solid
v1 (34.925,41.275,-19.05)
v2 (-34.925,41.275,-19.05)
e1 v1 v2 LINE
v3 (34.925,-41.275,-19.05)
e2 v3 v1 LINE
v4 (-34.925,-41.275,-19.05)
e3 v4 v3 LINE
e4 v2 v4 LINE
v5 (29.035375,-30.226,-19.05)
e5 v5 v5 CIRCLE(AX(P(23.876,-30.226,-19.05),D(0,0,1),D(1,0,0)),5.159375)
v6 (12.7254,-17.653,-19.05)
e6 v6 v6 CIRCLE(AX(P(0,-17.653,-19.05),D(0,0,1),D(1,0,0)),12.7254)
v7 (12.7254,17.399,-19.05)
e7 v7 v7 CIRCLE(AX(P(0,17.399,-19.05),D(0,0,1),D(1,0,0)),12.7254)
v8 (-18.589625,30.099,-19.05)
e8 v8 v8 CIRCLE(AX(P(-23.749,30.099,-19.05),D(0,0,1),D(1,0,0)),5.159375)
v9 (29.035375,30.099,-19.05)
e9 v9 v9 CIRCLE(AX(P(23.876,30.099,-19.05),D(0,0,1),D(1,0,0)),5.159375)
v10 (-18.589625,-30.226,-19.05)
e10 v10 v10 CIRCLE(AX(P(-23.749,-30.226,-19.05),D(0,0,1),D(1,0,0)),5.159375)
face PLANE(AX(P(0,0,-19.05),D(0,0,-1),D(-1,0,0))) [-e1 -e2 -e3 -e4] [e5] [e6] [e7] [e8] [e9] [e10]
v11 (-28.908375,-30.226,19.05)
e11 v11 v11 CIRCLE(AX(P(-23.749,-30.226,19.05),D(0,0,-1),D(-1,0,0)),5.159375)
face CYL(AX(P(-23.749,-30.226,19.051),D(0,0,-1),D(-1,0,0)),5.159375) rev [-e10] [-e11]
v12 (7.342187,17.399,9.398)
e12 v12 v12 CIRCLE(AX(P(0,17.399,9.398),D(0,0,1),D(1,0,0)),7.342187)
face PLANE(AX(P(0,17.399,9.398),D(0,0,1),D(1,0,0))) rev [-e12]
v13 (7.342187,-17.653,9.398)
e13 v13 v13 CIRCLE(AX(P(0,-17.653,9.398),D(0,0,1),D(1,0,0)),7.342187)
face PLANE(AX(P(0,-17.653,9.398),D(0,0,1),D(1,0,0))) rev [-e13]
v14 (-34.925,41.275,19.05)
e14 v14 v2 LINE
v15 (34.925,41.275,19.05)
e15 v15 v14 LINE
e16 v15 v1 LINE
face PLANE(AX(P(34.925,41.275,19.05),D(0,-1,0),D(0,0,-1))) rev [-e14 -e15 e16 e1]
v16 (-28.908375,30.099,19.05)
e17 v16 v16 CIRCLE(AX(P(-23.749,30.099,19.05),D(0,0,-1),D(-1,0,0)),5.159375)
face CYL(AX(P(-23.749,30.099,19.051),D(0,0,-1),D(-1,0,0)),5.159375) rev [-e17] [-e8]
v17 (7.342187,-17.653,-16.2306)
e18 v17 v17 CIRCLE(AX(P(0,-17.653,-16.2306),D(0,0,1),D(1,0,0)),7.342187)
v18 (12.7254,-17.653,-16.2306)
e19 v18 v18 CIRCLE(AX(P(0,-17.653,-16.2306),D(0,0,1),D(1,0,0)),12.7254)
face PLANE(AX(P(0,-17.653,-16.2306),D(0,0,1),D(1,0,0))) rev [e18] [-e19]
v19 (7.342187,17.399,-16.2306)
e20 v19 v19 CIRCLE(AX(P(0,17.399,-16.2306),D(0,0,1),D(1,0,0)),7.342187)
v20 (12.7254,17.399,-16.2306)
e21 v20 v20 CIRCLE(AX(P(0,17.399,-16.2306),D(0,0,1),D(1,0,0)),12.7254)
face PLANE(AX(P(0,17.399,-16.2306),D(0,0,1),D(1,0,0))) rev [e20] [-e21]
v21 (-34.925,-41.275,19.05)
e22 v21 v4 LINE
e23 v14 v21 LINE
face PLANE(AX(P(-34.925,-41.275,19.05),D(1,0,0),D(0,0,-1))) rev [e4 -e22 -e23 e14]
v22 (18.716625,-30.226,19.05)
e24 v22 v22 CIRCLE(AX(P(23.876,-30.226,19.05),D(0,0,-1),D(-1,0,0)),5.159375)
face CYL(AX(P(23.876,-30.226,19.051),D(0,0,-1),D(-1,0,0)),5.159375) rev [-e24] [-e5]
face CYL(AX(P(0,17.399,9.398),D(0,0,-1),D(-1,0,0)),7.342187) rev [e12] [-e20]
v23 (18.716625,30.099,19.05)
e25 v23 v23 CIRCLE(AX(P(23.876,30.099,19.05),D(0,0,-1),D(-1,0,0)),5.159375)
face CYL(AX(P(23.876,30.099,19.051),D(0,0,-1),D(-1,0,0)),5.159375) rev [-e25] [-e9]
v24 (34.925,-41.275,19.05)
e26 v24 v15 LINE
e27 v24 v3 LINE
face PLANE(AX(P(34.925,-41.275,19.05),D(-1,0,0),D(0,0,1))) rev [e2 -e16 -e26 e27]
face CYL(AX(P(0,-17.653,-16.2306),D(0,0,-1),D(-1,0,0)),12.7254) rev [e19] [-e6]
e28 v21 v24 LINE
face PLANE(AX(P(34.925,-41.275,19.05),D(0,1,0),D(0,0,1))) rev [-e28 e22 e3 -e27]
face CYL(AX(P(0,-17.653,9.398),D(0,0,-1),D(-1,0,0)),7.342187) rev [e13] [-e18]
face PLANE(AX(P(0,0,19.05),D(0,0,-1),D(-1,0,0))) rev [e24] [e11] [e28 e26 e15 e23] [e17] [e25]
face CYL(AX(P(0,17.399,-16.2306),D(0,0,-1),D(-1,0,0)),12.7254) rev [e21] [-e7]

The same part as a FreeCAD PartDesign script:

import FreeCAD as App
import Part
import Sketcher
Q = App.Units.Quantity


def add_polygon(sketch, points):
    """Adds a closed chain of lines whose ends are joined by coincident constraints."""
    first, n = sketch.GeometryCount, len(points)
    for a, b in zip(points, points[1:] + points[:1]):
        sketch.addGeometry(Part.LineSegment(App.Vector(*a, 0), App.Vector(*b, 0)), False)
    for i in range(n):
        sketch.addConstraint(Sketcher.Constraint("Coincident", first + i, 2, first + (i + 1) % n, 1))

doc = App.newDocument("Part")
body = doc.addObject("PartDesign::Body", "Body")

# Sketch on XY plane
sketch1 = body.newObject("Sketcher::SketchObject", "Sketch")
sketch1.AttachmentSupport = (doc.getObject("XY_Plane"), [""])
sketch1.MapMode = "FlatFace"
add_polygon(sketch1, [(-35, -41), (35, -41), (35, 41), (-35, 41)])  # lines 0-3
sketch1.addConstraint([
    Sketcher.Constraint("Horizontal", 0),
    Sketcher.Constraint("Vertical", 1),
    Sketcher.Constraint("Horizontal", 2),
    Sketcher.Constraint("Vertical", 3),
    Sketcher.Constraint("Symmetric", 0, 2, 2, 2, -1, 1),
    Sketcher.Constraint("DistanceX", 0, 1, 0, 2, Q("2.75 in")),
    Sketcher.Constraint("DistanceY", 1, 1, 1, 2, Q("3.25 in")),
])
pad1 = body.newObject("PartDesign::Pad", "Pad")
pad1.Profile = sketch1
pad1.Length = Q("1.5 in")
pad1.Midplane = True

# Sketch on XY plane
sketch2 = body.newObject("Sketcher::SketchObject", "Sketch001")
sketch2.AttachmentSupport = (doc.getObject("XY_Plane"), [""])
sketch2.MapMode = "FlatFace"
sketch2.AttachmentOffset = App.Placement(App.Vector(0, 0, -0.75 * 25.4), App.Rotation())
sketch2.addGeometry(Part.Circle(App.Vector(24, -30, 0), App.Vector(0, 0, 1), 5), False)
sketch2.addConstraint([
    Sketcher.Constraint("Diameter", 0, Q("0.40625 in")),
    Sketcher.Constraint("DistanceX", -1, 1, 0, 3, Q("0.94 in")),
    Sketcher.Constraint("DistanceY", 0, 3, -1, 1, Q("1.19 in")),
])
pocket1 = body.newObject("PartDesign::Pocket", "Pocket")
pocket1.Profile = sketch2
pocket1.Length = Q("1.5 in")
pocket1.Reversed = True

# Sketch on XY plane
sketch3 = body.newObject("Sketcher::SketchObject", "Sketch002")
sketch3.AttachmentSupport = (doc.getObject("XY_Plane"), [""])
sketch3.MapMode = "FlatFace"
sketch3.AttachmentOffset = App.Placement(App.Vector(0, 0, -0.75 * 25.4), App.Rotation())
sketch3.addGeometry([
    Part.Circle(App.Vector(24, 30, 0), App.Vector(0, 0, 1), 5),
    Part.Circle(App.Vector(-24, -30, 0), App.Vector(0, 0, 1), 5),
    Part.Circle(App.Vector(-24, 30, 0), App.Vector(0, 0, 1), 5),
], False)
sketch3.addConstraint([
    Sketcher.Constraint("Equal", 0, 1),
    Sketcher.Constraint("Equal", 1, 2),
    Sketcher.Constraint("Horizontal", 0, 3, 2, 3),
    Sketcher.Constraint("Vertical", 1, 3, 2, 3),
    Sketcher.Constraint("Diameter", 0, Q("0.40625 in")),
    Sketcher.Constraint("DistanceX", -1, 1, 0, 3, Q("0.94 in")),
    Sketcher.Constraint("DistanceY", 1, 3, -1, 1, Q("1.19 in")),
    Sketcher.Constraint("DistanceY", -1, 1, 0, 3, Q("1.185 in")),
    Sketcher.Constraint("DistanceX", 1, 3, -1, 1, Q("0.935 in")),
])
pocket2 = body.newObject("PartDesign::Pocket", "Pocket001")
pocket2.Profile = sketch3
pocket2.Length = Q("1.5 in")
pocket2.Reversed = True

# Sketch on XY plane
sketch4 = body.newObject("Sketcher::SketchObject", "Sketch003")
sketch4.AttachmentSupport = (doc.getObject("XY_Plane"), [""])
sketch4.MapMode = "FlatFace"
sketch4.AttachmentOffset = App.Placement(App.Vector(0, 0, -0.75 * 25.4), App.Rotation())
sketch4.addGeometry(Part.Circle(App.Vector(0, -18, 0), App.Vector(0, 0, 1), 7), False)
sketch4.addConstraint([
    Sketcher.Constraint("PointOnObject", 0, 3, -2),
    Sketcher.Constraint("Diameter", 0, Q("0.578125 in")),
    Sketcher.Constraint("DistanceY", 0, 3, -1, 1, Q("0.695 in")),
])
pocket3 = body.newObject("PartDesign::Pocket", "Pocket002")
pocket3.Profile = sketch4
pocket3.Length = Q("1.12 in")
pocket3.Reversed = True

# Sketch on XY plane
sketch5 = body.newObject("Sketcher::SketchObject", "Sketch004")
sketch5.AttachmentSupport = (doc.getObject("XY_Plane"), [""])
sketch5.MapMode = "FlatFace"
sketch5.AttachmentOffset = App.Placement(App.Vector(0, 0, -0.75 * 25.4), App.Rotation())
sketch5.addGeometry(Part.Circle(App.Vector(0, -18, 0), App.Vector(0, 0, 1), 13), False)
sketch5.addConstraint([
    Sketcher.Constraint("PointOnObject", 0, 3, -2),
    Sketcher.Constraint("Diameter", 0, Q("1.002 in")),
    Sketcher.Constraint("DistanceY", 0, 3, -1, 1, Q("0.695 in")),
])
pocket4 = body.newObject("PartDesign::Pocket", "Pocket003")
pocket4.Profile = sketch5
pocket4.Length = Q("0.111 in")
pocket4.Reversed = True

# Sketch on XY plane
sketch6 = body.newObject("Sketcher::SketchObject", "Sketch005")
sketch6.AttachmentSupport = (doc.getObject("XY_Plane"), [""])
sketch6.MapMode = "FlatFace"
sketch6.AttachmentOffset = App.Placement(App.Vector(0, 0, -0.75 * 25.4), App.Rotation())
sketch6.addGeometry(Part.Circle(App.Vector(0, 17, 0), App.Vector(0, 0, 1), 7), False)
sketch6.addConstraint([
    Sketcher.Constraint("PointOnObject", 0, 3, -2),
    Sketcher.Constraint("Diameter", 0, Q("0.578125 in")),
    Sketcher.Constraint("DistanceY", -1, 1, 0, 3, Q("0.685 in")),
])
pocket5 = body.newObject("PartDesign::Pocket", "Pocket004")
pocket5.Profile = sketch6
pocket5.Length = Q("1.12 in")
pocket5.Reversed = True

# Sketch on XY plane
sketch7 = body.newObject("Sketcher::SketchObject", "Sketch006")
sketch7.AttachmentSupport = (doc.getObject("XY_Plane"), [""])
sketch7.MapMode = "FlatFace"
sketch7.AttachmentOffset = App.Placement(App.Vector(0, 0, -0.75 * 25.4), App.Rotation())
sketch7.addGeometry(Part.Circle(App.Vector(0, 17, 0), App.Vector(0, 0, 1), 13), False)
sketch7.addConstraint([
    Sketcher.Constraint("PointOnObject", 0, 3, -2),
    Sketcher.Constraint("Diameter", 0, Q("1.002 in")),
    Sketcher.Constraint("DistanceY", -1, 1, 0, 3, Q("0.685 in")),
])
pocket6 = body.newObject("PartDesign::Pocket", "Pocket005")
pocket6.Profile = sketch7
pocket6.Length = Q("0.111 in")
pocket6.Reversed = True

doc.recompute()
